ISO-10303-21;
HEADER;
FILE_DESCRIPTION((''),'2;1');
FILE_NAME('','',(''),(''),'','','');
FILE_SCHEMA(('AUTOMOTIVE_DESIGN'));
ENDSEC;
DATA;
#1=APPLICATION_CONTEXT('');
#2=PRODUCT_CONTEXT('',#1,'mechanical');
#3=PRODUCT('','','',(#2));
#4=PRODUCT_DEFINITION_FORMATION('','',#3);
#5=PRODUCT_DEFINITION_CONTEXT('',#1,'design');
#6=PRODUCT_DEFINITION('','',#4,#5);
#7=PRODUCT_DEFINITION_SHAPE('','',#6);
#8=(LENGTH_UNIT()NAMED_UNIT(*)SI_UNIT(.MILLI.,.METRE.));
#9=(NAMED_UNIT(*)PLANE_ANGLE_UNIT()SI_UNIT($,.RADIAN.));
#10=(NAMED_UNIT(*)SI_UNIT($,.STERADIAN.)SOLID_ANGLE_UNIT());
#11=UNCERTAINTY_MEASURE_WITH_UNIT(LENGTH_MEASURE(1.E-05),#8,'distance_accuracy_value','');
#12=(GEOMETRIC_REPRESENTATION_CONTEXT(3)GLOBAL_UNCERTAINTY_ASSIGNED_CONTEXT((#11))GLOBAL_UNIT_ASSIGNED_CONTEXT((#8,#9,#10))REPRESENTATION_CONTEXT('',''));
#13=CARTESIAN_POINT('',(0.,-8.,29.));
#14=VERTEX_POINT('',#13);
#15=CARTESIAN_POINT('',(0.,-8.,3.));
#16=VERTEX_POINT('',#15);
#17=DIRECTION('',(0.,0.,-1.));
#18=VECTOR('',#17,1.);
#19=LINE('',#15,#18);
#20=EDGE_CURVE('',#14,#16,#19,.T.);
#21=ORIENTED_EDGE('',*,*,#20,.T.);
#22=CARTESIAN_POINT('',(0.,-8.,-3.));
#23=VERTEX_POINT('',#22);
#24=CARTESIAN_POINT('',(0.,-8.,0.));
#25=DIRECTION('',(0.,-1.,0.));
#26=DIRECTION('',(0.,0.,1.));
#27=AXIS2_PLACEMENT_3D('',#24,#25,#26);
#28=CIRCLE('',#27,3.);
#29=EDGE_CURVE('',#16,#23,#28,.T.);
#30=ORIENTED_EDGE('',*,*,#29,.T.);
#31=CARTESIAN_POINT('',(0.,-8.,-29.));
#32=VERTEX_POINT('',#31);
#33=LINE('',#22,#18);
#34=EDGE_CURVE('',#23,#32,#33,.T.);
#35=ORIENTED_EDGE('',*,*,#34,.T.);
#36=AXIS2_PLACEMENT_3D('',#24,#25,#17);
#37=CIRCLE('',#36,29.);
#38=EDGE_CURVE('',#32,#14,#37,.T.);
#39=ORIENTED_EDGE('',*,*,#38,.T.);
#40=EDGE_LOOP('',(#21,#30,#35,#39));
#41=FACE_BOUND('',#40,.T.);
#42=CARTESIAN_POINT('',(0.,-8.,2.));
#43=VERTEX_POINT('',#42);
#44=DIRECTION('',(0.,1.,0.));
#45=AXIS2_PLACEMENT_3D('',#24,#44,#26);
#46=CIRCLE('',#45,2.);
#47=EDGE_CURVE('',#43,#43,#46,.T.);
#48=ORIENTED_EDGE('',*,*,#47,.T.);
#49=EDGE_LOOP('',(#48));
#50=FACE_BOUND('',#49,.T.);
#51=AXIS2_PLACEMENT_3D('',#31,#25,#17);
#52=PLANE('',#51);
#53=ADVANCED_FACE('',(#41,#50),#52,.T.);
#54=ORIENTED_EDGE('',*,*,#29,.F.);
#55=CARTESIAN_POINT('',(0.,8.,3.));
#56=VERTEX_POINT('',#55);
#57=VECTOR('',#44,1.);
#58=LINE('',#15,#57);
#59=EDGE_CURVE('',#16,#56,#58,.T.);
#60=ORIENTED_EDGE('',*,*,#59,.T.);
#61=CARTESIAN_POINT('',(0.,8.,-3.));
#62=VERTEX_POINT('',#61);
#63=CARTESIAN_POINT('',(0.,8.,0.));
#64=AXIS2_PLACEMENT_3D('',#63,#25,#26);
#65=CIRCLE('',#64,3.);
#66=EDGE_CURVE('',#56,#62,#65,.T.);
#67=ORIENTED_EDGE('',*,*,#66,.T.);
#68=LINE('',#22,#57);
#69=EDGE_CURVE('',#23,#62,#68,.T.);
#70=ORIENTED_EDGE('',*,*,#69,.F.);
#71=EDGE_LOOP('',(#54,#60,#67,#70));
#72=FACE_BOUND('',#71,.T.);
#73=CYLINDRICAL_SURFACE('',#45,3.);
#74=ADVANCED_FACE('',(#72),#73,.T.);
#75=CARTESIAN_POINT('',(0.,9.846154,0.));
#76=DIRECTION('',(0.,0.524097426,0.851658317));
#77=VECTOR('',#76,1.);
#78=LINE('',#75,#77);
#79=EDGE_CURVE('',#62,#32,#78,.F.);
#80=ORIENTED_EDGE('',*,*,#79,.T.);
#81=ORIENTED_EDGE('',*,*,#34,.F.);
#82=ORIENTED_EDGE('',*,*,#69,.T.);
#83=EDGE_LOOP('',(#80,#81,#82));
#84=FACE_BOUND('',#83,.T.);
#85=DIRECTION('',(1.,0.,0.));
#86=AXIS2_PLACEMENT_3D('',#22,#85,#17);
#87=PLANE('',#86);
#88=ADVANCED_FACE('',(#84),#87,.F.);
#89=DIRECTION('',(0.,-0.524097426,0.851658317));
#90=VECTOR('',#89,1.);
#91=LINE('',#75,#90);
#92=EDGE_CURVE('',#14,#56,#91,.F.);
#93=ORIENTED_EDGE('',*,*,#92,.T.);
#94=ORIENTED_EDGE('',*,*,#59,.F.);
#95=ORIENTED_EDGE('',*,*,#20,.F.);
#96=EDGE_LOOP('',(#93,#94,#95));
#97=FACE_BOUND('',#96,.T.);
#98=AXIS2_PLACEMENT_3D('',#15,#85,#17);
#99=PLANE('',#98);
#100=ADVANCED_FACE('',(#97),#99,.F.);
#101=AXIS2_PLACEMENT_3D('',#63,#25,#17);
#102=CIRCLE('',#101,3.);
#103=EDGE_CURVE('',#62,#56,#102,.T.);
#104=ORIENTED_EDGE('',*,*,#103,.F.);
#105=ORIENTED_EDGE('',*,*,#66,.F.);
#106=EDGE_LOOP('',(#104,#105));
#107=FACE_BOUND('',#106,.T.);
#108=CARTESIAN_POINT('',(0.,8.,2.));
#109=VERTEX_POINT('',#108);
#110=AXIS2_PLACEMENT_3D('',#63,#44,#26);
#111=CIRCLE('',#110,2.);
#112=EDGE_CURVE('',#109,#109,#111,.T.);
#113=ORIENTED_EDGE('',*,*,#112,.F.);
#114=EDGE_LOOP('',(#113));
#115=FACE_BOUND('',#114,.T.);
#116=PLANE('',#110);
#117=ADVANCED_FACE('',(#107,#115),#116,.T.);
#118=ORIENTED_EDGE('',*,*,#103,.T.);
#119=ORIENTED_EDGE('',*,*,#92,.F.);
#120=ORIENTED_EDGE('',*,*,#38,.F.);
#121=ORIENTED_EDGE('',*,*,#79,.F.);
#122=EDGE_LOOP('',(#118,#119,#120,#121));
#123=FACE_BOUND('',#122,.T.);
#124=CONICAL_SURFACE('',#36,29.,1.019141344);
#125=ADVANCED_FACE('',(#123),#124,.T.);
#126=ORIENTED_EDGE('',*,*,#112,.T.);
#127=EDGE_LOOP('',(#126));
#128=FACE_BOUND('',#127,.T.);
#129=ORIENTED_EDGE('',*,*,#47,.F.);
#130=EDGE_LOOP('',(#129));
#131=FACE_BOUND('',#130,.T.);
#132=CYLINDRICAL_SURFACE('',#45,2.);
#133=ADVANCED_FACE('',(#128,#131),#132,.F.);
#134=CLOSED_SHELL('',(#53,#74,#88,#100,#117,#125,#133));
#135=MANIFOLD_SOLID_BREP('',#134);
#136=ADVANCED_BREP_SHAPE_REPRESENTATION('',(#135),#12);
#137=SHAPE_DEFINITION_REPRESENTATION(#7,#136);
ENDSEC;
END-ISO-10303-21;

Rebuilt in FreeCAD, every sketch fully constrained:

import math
import FreeCAD as App
import Part
import Sketcher
from FreeCAD import Vector

doc = App.newDocument("Part")
body = doc.addObject("PartDesign::Body", "Body")

# Sketch on YZ plane
sketch1 = doc.addObject("Sketcher::SketchObject", "Sketch")
body.addObject(sketch1)
sketch1.AttachmentSupport = (doc.YZ_Plane, [""])
sketch1.MapMode = "FlatFace"
sketch1.addGeometry([
    Part.LineSegment(Vector(8, 0, 0), Vector(-8, 0, 0)),
    Part.LineSegment(Vector(-8, 0, 0), Vector(-8, -29, 0)),
    Part.LineSegment(Vector(-8, -29, 0), Vector(8, -3, 0)),
    Part.LineSegment(Vector(8, -3, 0), Vector(8, 0, 0)),
], False)
sketch1.addConstraint([
    Sketcher.Constraint("Coincident", 0, 2, 1, 1),
    Sketcher.Constraint("Coincident", 1, 2, 2, 1),
    Sketcher.Constraint("Coincident", 2, 2, 3, 1),
    Sketcher.Constraint("Coincident", 3, 2, 0, 1),
    Sketcher.Constraint("Horizontal", 0),
    Sketcher.Constraint("Vertical", 1),
    Sketcher.Constraint("Vertical", 3),
    Sketcher.Constraint("Symmetric", 0, 2, 3, 2, -1, 1),
    Sketcher.Constraint("DistanceX", 0, 2, 0, 1, 16.0),
    Sketcher.Constraint("DistanceY", 1, 2, 1, 1, 29.0),
    Sketcher.Constraint("DistanceY", 3, 1, 3, 2, 3.0),
])
revolution = doc.addObject("PartDesign::Revolution", "Revolution")
body.addObject(revolution)
revolution.Profile = sketch1
revolution.ReferenceAxis = (sketch1, ["H_Axis"])
revolution.Angle = 360

# Sketch on XZ plane
sketch2 = doc.addObject("Sketcher::SketchObject", "Sketch001")
body.addObject(sketch2)
sketch2.AttachmentSupport = (doc.XZ_Plane, [""])
sketch2.MapMode = "FlatFace"
sketch2.AttachmentOffset = App.Placement(Vector(0, 0, -8), App.Rotation())
sketch2.addGeometry([
    Part.LineSegment(Vector(0, -3, 0), Vector(0, -40.3, 0)),  # 0
    Part.LineSegment(Vector(0, -40.3, 0), Vector(-47.6, -40.3, 0)),  # 1
    Part.LineSegment(Vector(-47.6, -40.3, 0), Vector(-47.6, 40, 0)),  # 2
    Part.LineSegment(Vector(-47.6, 40, 0), Vector(0, 40, 0)),  # 3
    Part.LineSegment(Vector(0, 40, 0), Vector(0, 3, 0)),  # 4
    Part.ArcOfCircle(Part.Circle(Vector(0, 0, 0), Vector(0, 0, 1), 3), math.radians(90), math.radians(270)),  # 5
], False)
sketch2.addConstraint([
    Sketcher.Constraint("Coincident", 0, 2, 1, 1),
    Sketcher.Constraint("Coincident", 1, 2, 2, 1),
    Sketcher.Constraint("Coincident", 2, 2, 3, 1),
    Sketcher.Constraint("Coincident", 3, 2, 4, 1),
    Sketcher.Constraint("Coincident", 4, 2, 5, 1),
    Sketcher.Constraint("Coincident", 5, 2, 0, 1),
    Sketcher.Constraint("Vertical", 0),
    Sketcher.Constraint("Horizontal", 1),
    Sketcher.Constraint("Vertical", 2),
    Sketcher.Constraint("Horizontal", 3),
    Sketcher.Constraint("Vertical", 4),
    Sketcher.Constraint("Coincident", 5, 3, -1, 1),
    Sketcher.Constraint("PointOnObject", 0, 2, -2),
    Sketcher.Constraint("PointOnObject", 3, 2, -2),
    Sketcher.Constraint("Radius", 5, 3.0),
    Sketcher.Constraint("DistanceY", 2, 1, 2, 2, 80.289089),
    Sketcher.Constraint("DistanceX", 1, 2, 1, 1, 47.550668),
    Sketcher.Constraint("DistanceY", 0, 2, 0, 1, 37.325376),
])
pocket1 = doc.addObject("PartDesign::Pocket", "Pocket")
body.addObject(pocket1)
pocket1.Profile = sketch2
pocket1.Type = "ThroughAll"
pocket1.Reversed = True

# Sketch on XZ plane
sketch3 = doc.addObject("Sketcher::SketchObject", "Sketch002")
body.addObject(sketch3)
sketch3.AttachmentSupport = (doc.XZ_Plane, [""])
sketch3.MapMode = "FlatFace"
sketch3.AttachmentOffset = App.Placement(Vector(0, 0, -8), App.Rotation())
sketch3.addGeometry(Part.Circle(Vector(0, 0, 0), Vector(0, 0, 1), 2), False)
sketch3.addConstraint([
    Sketcher.Constraint("Coincident", 0, 3, -1, 1),
    Sketcher.Constraint("Diameter", 0, 4.0),
])
pocket2 = doc.addObject("PartDesign::Pocket", "Pocket001")
body.addObject(pocket2)
pocket2.Profile = sketch3
pocket2.Type = "ThroughAll"
pocket2.Reversed = True

doc.recompute()
